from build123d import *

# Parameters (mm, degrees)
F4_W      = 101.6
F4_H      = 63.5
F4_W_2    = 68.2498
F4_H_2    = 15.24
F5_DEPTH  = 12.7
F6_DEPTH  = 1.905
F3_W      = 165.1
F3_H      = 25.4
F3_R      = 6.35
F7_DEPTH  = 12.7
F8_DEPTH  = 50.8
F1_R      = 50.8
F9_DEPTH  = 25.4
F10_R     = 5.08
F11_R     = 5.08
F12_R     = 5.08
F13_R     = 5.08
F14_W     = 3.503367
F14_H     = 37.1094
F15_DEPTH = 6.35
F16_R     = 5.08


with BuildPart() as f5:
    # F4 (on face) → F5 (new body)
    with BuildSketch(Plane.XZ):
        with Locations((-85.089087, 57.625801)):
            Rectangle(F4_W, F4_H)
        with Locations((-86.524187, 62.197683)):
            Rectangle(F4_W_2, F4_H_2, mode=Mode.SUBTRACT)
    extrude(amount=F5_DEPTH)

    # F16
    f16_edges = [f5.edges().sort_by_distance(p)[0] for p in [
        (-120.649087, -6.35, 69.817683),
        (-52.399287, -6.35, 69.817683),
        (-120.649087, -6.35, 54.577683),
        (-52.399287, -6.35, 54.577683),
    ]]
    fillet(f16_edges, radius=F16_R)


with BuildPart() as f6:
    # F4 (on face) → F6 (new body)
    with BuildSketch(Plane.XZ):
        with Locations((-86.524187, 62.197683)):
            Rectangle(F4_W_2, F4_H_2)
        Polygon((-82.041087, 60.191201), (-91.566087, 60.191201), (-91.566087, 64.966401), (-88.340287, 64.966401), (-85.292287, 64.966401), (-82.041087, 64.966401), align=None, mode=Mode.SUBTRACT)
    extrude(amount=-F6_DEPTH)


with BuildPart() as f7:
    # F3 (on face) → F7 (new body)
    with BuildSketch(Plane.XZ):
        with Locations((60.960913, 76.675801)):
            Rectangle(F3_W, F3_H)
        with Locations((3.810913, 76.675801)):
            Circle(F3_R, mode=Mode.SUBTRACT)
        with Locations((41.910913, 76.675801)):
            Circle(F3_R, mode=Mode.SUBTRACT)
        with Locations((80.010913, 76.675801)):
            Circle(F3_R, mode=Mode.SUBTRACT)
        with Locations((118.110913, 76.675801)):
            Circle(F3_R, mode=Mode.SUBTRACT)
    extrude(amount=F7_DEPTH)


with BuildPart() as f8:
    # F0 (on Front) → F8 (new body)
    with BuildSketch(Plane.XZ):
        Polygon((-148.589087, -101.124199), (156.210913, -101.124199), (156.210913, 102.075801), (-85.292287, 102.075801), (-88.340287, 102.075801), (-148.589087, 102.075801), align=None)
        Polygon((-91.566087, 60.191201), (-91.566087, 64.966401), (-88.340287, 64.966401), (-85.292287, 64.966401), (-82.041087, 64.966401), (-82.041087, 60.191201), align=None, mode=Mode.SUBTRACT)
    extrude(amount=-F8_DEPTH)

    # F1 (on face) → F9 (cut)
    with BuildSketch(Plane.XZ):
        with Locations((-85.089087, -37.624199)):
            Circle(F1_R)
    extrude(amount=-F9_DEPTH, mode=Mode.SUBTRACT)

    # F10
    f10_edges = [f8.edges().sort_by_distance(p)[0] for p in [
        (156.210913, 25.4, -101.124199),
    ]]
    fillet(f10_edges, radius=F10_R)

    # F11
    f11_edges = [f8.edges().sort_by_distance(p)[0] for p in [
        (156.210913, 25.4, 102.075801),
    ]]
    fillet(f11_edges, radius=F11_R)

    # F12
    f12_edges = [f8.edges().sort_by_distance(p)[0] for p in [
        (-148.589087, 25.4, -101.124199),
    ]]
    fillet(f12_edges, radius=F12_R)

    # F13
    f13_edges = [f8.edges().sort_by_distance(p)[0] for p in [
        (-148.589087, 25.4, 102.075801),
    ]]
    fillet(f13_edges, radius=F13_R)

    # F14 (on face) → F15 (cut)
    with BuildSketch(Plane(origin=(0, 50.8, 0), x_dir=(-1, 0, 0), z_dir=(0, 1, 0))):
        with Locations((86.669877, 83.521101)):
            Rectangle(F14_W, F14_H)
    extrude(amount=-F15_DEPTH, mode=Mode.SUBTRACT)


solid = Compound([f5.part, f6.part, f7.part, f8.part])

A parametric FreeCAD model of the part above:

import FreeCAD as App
import Part
import Sketcher
Q = App.Units.Quantity


def edges_at(feature, points):
    """Names of the edges that pass closest to the given points."""
    edges = feature.Shape.Edges
    near = lambda p: min(range(len(edges)), key=lambda i: edges[i].distToShape(Part.Vertex(*p))[0])
    return sorted({f"Edge{near(p) + 1}" for p in points})


def add_polygon(sketch, points):
    """Adds a closed chain of lines whose ends are joined by coincident constraints."""
    first, n = sketch.GeometryCount, len(points)
    for a, b in zip(points, points[1:] + points[:1]):
        sketch.addGeometry(Part.LineSegment(App.Vector(*a, 0), App.Vector(*b, 0)), False)
    for i in range(n):
        sketch.addConstraint(Sketcher.Constraint("Coincident", first + i, 2, first + (i + 1) % n, 1))

doc = App.newDocument("Part")
body = doc.addObject("PartDesign::Body", "Body")

# Sketch on XZ plane
sketch1 = doc.addObject("Sketcher::SketchObject", "Sketch")
body.addObject(sketch1)
sketch1.AttachmentSupport = (doc.XZ_Plane, [""])
sketch1.MapMode = "FlatFace"
add_polygon(sketch1, [(-136, 89), (-136, 26), (-34, 26), (-34, 89)])  # lines 0-3
add_polygon(sketch1, [(-52, 55), (-121, 55), (-121, 70), (-52, 70)])  # lines 4-7
sketch1.addConstraint([
    Sketcher.Constraint("Vertical", 0),
    Sketcher.Constraint("Horizontal", 1),
    Sketcher.Constraint("Vertical", 2),
    Sketcher.Constraint("Horizontal", 3),
    Sketcher.Constraint("Horizontal", 4),
    Sketcher.Constraint("Vertical", 5),
    Sketcher.Constraint("Horizontal", 6),
    Sketcher.Constraint("Vertical", 7),
    Sketcher.Constraint("DistanceX", 1, 1, 1, 2, Q("4 in")),
    Sketcher.Constraint("DistanceY", 0, 2, 0, 1, Q("2.5 in")),
    Sketcher.Constraint("DistanceY", 5, 1, 5, 2, Q("0.6 in")),
    Sketcher.Constraint("DistanceX", 0, 2, 4, 2, Q("0.6 in")),
    Sketcher.Constraint("DistanceX", 4, 2, 4, 1, Q("2.687 in")),
    Sketcher.Constraint("DistanceY", -1, 1, 0, 2, 25.875801),
    Sketcher.Constraint("DistanceX", 0, 2, -1, 1, 135.889087),
    Sketcher.Constraint("DistanceY", -1, 1, 4, 2, 54.577683),
])
pad1 = doc.addObject("PartDesign::Pad", "Pad")
body.addObject(pad1)
pad1.Profile = sketch1
pad1.Length = Q("0.5 in")
doc.recompute()

fillet = doc.addObject("PartDesign::Fillet", "Fillet")
body.addObject(fillet)
fillet.Base = (pad1, edges_at(pad1, [
    (-120.649, -6.35, 69.818),
    (-52.399, -6.35, 69.818),
    (-120.649, -6.35, 54.578),
    (-52.399, -6.35, 54.578),
]))
fillet.Radius = Q("0.2 in")
body2 = doc.addObject("PartDesign::Body", "Body001")

# Sketch on XZ plane
sketch2 = doc.addObject("Sketcher::SketchObject", "Sketch001")
body2.addObject(sketch2)
sketch2.AttachmentSupport = (doc.getObject("XZ_Plane001"), [""])
sketch2.MapMode = "FlatFace"
add_polygon(sketch2, [(-120.6, 69.8), (-120.6, 54.6), (-52.4, 54.6), (-52.4, 69.8)])  # lines 0-3
add_polygon(sketch2, [(-82, 65), (-82, 60.2), (-91.6, 60.2), (-91.6, 65)])  # lines 4-7
sketch2.addConstraint([
    Sketcher.Constraint("Vertical", 0),
    Sketcher.Constraint("Horizontal", 1),
    Sketcher.Constraint("Vertical", 2),
    Sketcher.Constraint("Horizontal", 3),
    Sketcher.Constraint("Vertical", 4),
    Sketcher.Constraint("Horizontal", 5),
    Sketcher.Constraint("Vertical", 6),
    Sketcher.Constraint("Horizontal", 7),
    Sketcher.Constraint("DistanceY", 0, 2, 0, 1, Q("0.6 in")),
    Sketcher.Constraint("DistanceX", 1, 1, 1, 2, Q("2.687 in")),
    Sketcher.Constraint("DistanceX", 5, 2, 5, 1, Q("0.375 in")),
    Sketcher.Constraint("DistanceY", 4, 2, 4, 1, Q("0.188 in")),
    Sketcher.Constraint("DistanceX", 0, 2, 4, 2, Q("1.52 in")),
    Sketcher.Constraint("DistanceY", -1, 1, 4, 2, 60.191201),
    Sketcher.Constraint("DistanceY", 6, 2, 3, 2, 4.851282),
    Sketcher.Constraint("DistanceX", 0, 2, -1, 1, 120.649087),
])
pad2 = doc.addObject("PartDesign::Pad", "Pad001")
body2.addObject(pad2)
pad2.Profile = sketch2
pad2.Length = Q("0.075 in")
pad2.Reversed = True
body3 = doc.addObject("PartDesign::Body", "Body002")

# Sketch on XZ plane
sketch3 = doc.addObject("Sketcher::SketchObject", "Sketch002")
body3.addObject(sketch3)
sketch3.AttachmentSupport = (doc.getObject("XZ_Plane002"), [""])
sketch3.MapMode = "FlatFace"
add_polygon(sketch3, [(-22, 89), (-22, 64), (144, 64), (144, 89)])  # lines 0-3
sketch3.addGeometry(Part.Circle(App.Vector(4, 77, 0), App.Vector(0, 0, 1), 6), False)  # 4
sketch3.addGeometry(Part.Circle(App.Vector(42, 77, 0), App.Vector(0, 0, 1), 6), False)  # 5
sketch3.addGeometry(Part.Circle(App.Vector(80, 77, 0), App.Vector(0, 0, 1), 6), False)  # 6
sketch3.addGeometry(Part.Circle(App.Vector(118, 77, 0), App.Vector(0, 0, 1), 6), False)  # 7
sketch3.addConstraint([
    Sketcher.Constraint("Vertical", 0),
    Sketcher.Constraint("Horizontal", 1),
    Sketcher.Constraint("Vertical", 2),
    Sketcher.Constraint("Horizontal", 3),
    Sketcher.Constraint("Equal", 4, 5),
    Sketcher.Constraint("Equal", 5, 6),
    Sketcher.Constraint("Equal", 6, 7),
    Sketcher.Constraint("Horizontal", 4, 3, 5, 3),
    Sketcher.Constraint("Horizontal", 5, 3, 6, 3),
    Sketcher.Constraint("Horizontal", 6, 3, 7, 3),
    Sketcher.Constraint("Diameter", 4, Q("0.5 in")),
    Sketcher.Constraint("DistanceY", 0, 2, 0, 1, Q("1 in")),
    Sketcher.Constraint("DistanceX", 1, 1, 1, 2, Q("6.5 in")),
    Sketcher.Constraint("DistanceX", 4, 3, 6, 3, Q("3 in")),
    Sketcher.Constraint("DistanceX", 5, 3, 7, 3, Q("3 in")),
    Sketcher.Constraint("DistanceX", 0, 2, 4, 3, Q("1 in")),
    Sketcher.Constraint("DistanceX", 7, 3, 1, 2, Q("1 in")),
    Sketcher.Constraint("DistanceY", 0, 2, 4, 3, Q("0.5 in")),
    Sketcher.Constraint("DistanceY", -1, 1, 4, 3, 76.675801),
    Sketcher.Constraint("DistanceX", -1, 1, 4, 3, 3.810913),
])
pad3 = doc.addObject("PartDesign::Pad", "Pad002")
body3.addObject(pad3)
pad3.Profile = sketch3
pad3.Length = Q("0.5 in")
body4 = doc.addObject("PartDesign::Body", "Body003")

# Sketch on XZ plane
sketch4 = doc.addObject("Sketcher::SketchObject", "Sketch003")
body4.addObject(sketch4)
sketch4.AttachmentSupport = (doc.getObject("XZ_Plane003"), [""])
sketch4.MapMode = "FlatFace"
add_polygon(sketch4, [(-148.6, -101.1), (156.2, -101.1), (156.2, 102.1), (-148.6, 102.1)])  # lines 0-3
add_polygon(sketch4, [(-82, 60.2), (-91.6, 60.2), (-91.6, 65), (-82, 65)])  # lines 4-7
sketch4.addConstraint([
    Sketcher.Constraint("Horizontal", 0),
    Sketcher.Constraint("Vertical", 1),
    Sketcher.Constraint("Horizontal", 2),
    Sketcher.Constraint("Vertical", 3),
    Sketcher.Constraint("Horizontal", 4),
    Sketcher.Constraint("Vertical", 5),
    Sketcher.Constraint("Horizontal", 6),
    Sketcher.Constraint("Vertical", 7),
    Sketcher.Constraint("DistanceX", 0, 1, 0, 2, Q("12 in")),
    Sketcher.Constraint("DistanceY", 1, 1, 1, 2, Q("8 in")),
    Sketcher.Constraint("DistanceX", 4, 2, 4, 1, Q("0.375 in")),
    Sketcher.Constraint("DistanceY", 5, 1, 5, 2, Q("0.188 in")),
    Sketcher.Constraint("DistanceX", 2, 2, 6, 2, Q("2.62 in")),
    Sketcher.Constraint("DistanceY", 4, 2, 2, 2, Q("1.649 in")),
    Sketcher.Constraint("DistanceY", 0, 2, -1, 1, 101.124199),
    Sketcher.Constraint("DistanceX", -1, 1, 0, 2, 156.210913),
])
pad4 = doc.addObject("PartDesign::Pad", "Pad003")
body4.addObject(pad4)
pad4.Profile = sketch4
pad4.Length = Q("2 in")
pad4.Reversed = True

# Sketch on XZ plane
sketch5 = doc.addObject("Sketcher::SketchObject", "Sketch004")
body4.addObject(sketch5)
sketch5.AttachmentSupport = (doc.getObject("XZ_Plane003"), [""])
sketch5.MapMode = "FlatFace"
sketch5.addGeometry(Part.Circle(App.Vector(-85, -38, 0), App.Vector(0, 0, 1), 51), False)
sketch5.addConstraint([
    Sketcher.Constraint("Diameter", 0, Q("4 in")),
    Sketcher.Constraint("DistanceY", 0, 3, -1, 1, 37.624199),
    Sketcher.Constraint("DistanceX", 0, 3, -1, 1, 85.089087),
])
pocket1 = doc.addObject("PartDesign::Pocket", "Pocket")
body4.addObject(pocket1)
pocket1.Profile = sketch5
pocket1.Length = Q("1 in")
doc.recompute()

fillet2 = doc.addObject("PartDesign::Fillet", "Fillet001")
body4.addObject(fillet2)
fillet2.Base = (pocket1, edges_at(pocket1, [(156.211, 25.4, -101.124)]))
fillet2.Radius = Q("0.2 in")
doc.recompute()

fillet3 = doc.addObject("PartDesign::Fillet", "Fillet002")
body4.addObject(fillet3)
fillet3.Base = (fillet2, edges_at(fillet2, [(156.211, 25.4, 102.076)]))
fillet3.Radius = Q("0.2 in")
doc.recompute()

fillet4 = doc.addObject("PartDesign::Fillet", "Fillet003")
body4.addObject(fillet4)
fillet4.Base = (fillet3, edges_at(fillet3, [(-148.589, 25.4, -101.124)]))
fillet4.Radius = Q("0.2 in")
doc.recompute()

fillet5 = doc.addObject("PartDesign::Fillet", "Fillet004")
body4.addObject(fillet5)
fillet5.Base = (fillet4, edges_at(fillet4, [(-148.589, 25.4, 102.076)]))
fillet5.Radius = Q("0.2 in")

# Sketch on XZ plane
sketch6 = doc.addObject("Sketcher::SketchObject", "Sketch005")
body4.addObject(sketch6)
sketch6.AttachmentSupport = (doc.getObject("XZ_Plane003"), [""])
sketch6.MapMode = "FlatFace"
sketch6.AttachmentOffset = App.Placement(App.Vector(0, 0, -2 * 25.4), App.Rotation())
add_polygon(sketch6, [(-84.9, 102.1), (-84.9, 65), (-88.4, 65), (-88.4, 102.1)])  # lines 0-3
sketch6.addConstraint([
    Sketcher.Constraint("Vertical", 0),
    Sketcher.Constraint("Horizontal", 1),
    Sketcher.Constraint("Vertical", 2),
    Sketcher.Constraint("Horizontal", 3),
    Sketcher.Constraint("DistanceY", 0, 2, 0, 1, Q("1.461 in")),
    Sketcher.Constraint("DistanceY", -1, 1, 0, 2, 64.966401),
    Sketcher.Constraint("DistanceX", 1, 2, 1, 1, 3.503367),
    Sketcher.Constraint("DistanceX", 1, 2, -1, 1, 88.42156),
])
pocket2 = doc.addObject("PartDesign::Pocket", "Pocket001")
body4.addObject(pocket2)
pocket2.Profile = sketch6
pocket2.Length = Q("0.25 in")
pocket2.Reversed = True

doc.recompute()
